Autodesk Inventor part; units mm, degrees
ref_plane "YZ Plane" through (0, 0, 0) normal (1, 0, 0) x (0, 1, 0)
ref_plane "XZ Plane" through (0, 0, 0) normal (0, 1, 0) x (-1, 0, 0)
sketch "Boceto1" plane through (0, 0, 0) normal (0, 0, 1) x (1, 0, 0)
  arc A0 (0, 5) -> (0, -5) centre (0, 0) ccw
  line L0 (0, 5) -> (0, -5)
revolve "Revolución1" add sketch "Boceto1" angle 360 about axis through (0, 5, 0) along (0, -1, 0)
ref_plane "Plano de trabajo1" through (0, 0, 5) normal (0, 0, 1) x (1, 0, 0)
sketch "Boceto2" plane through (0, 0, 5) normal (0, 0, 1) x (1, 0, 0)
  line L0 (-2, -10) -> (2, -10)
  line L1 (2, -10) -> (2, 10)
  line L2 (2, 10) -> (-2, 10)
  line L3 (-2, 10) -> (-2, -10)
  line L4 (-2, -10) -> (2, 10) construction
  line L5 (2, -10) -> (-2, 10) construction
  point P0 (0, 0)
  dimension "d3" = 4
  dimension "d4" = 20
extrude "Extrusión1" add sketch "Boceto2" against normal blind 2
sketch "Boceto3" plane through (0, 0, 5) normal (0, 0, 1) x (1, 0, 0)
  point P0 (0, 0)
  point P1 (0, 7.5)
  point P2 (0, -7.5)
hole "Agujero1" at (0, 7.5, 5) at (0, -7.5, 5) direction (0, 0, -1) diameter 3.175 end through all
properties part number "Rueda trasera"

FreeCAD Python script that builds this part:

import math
import FreeCAD as App
import Part
import Sketcher
Q = App.Units.Quantity

doc = App.newDocument("Part")
body = doc.addObject("PartDesign::Body", "Body")

sketch1 = body.newObject("Sketcher::SketchObject", "Sketch")
sketch1.AttachmentSupport = (doc.getObject("XY_Plane"), [""])
sketch1.MapMode = "FlatFace"
sketch1.addGeometry([
    Part.LineSegment(App.Vector(0, -5, 0), App.Vector(0, 5, 0)),
    Part.ArcOfCircle(Part.Circle(App.Vector(0, 0, 0), App.Vector(0, 0, 1), 5), math.radians(90), math.radians(270)),
], False)
sketch1.addConstraint([
    Sketcher.Constraint("Coincident", 0, 1, 1, 2),
    Sketcher.Constraint("Coincident", 1, 1, 0, 2),
    Sketcher.Constraint("Vertical", 0),
    Sketcher.Constraint("Coincident", 1, 3, -1, 1),
    Sketcher.Constraint("PointOnObject", 0, 1, -2),
    Sketcher.Constraint("Radius", 1, Q("5 mm")),
])
revolution = body.newObject("PartDesign::Revolution", "Revolution")
revolution.Profile = sketch1
revolution.ReferenceAxis = (sketch1, ["V_Axis"])
revolution.Angle = 360

sketch2 = body.newObject("Sketcher::SketchObject", "Sketch001")
sketch2.AttachmentSupport = (doc.getObject("XY_Plane"), [""])
sketch2.MapMode = "FlatFace"
sketch2.AttachmentOffset = App.Placement(App.Vector(0, 0, 5), App.Rotation())
sketch2.addGeometry([
    Part.LineSegment(App.Vector(-2, 10, 0), App.Vector(-2, -10, 0)),
    Part.LineSegment(App.Vector(-2, -10, 0), App.Vector(2, -10, 0)),
    Part.LineSegment(App.Vector(2, -10, 0), App.Vector(2, 10, 0)),
    Part.LineSegment(App.Vector(2, 10, 0), App.Vector(-2, 10, 0)),
], False)
sketch2.addConstraint([
    Sketcher.Constraint("Coincident", 0, 2, 1, 1),
    Sketcher.Constraint("Coincident", 1, 2, 2, 1),
    Sketcher.Constraint("Coincident", 2, 2, 3, 1),
    Sketcher.Constraint("Coincident", 3, 2, 0, 1),
    Sketcher.Constraint("Vertical", 0),
    Sketcher.Constraint("Horizontal", 1),
    Sketcher.Constraint("Vertical", 2),
    Sketcher.Constraint("Horizontal", 3),
    Sketcher.Constraint("Symmetric", 0, 2, 2, 2, -1, 1),
    Sketcher.Constraint("DistanceX", 1, 1, 1, 2, Q("4 mm")),
    Sketcher.Constraint("DistanceY", 0, 2, 0, 1, Q("20 mm")),
])
pad1 = body.newObject("PartDesign::Pad", "Pad")
pad1.Profile = sketch2
pad1.Length = 2
pad1.Reversed = True

sketch3 = body.newObject("Sketcher::SketchObject", "Sketch002")
sketch3.AttachmentSupport = (doc.getObject("XY_Plane"), [""])
sketch3.MapMode = "FlatFace"
sketch3.AttachmentOffset = App.Placement(App.Vector(0, 0, 5), App.Rotation())
sketch3.addGeometry([
    Part.Circle(App.Vector(0, 7.5, 0), App.Vector(0, 0, 1), 1.6),
    Part.Circle(App.Vector(0, -7.5, 0), App.Vector(0, 0, 1), 1.6),
], False)
sketch3.addConstraint([
    Sketcher.Constraint("Equal", 0, 1),
    Sketcher.Constraint("Symmetric", 0, 3, 1, 3, -1, 1),
    Sketcher.Constraint("PointOnObject", 0, 3, -2),
    Sketcher.Constraint("Diameter", 0, Q("3.175 mm")),
    Sketcher.Constraint("DistanceY", 1, 3, 0, 3, Q("15 mm")),
])
doc.recompute()
hole = body.newObject("PartDesign::Hole", "Hole")
hole.Profile = sketch3
hole.ThreadType = "None"
hole.Diameter = 3.175
hole.DepthType = "ThroughAll"

doc.recompute()
